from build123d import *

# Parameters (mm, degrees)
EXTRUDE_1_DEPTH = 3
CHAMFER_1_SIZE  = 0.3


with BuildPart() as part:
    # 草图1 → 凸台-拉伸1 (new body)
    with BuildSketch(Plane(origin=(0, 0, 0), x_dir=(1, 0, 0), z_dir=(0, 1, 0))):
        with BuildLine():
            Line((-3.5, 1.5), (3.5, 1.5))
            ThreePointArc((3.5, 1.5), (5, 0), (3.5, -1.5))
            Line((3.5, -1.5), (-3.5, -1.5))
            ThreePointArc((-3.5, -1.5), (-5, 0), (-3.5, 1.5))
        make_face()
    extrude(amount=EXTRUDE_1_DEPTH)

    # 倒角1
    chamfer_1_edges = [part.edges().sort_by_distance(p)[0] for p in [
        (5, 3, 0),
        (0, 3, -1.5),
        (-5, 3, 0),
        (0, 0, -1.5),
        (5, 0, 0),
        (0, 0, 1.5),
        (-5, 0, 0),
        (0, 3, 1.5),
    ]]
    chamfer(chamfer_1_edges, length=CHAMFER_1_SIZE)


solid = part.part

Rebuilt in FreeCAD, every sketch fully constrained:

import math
import FreeCAD as App
import Part
import Sketcher


def edges_at(feature, points):
    """Names of the edges that pass closest to the given points."""
    edges = feature.Shape.Edges
    near = lambda p: min(range(len(edges)), key=lambda i: edges[i].distToShape(Part.Vertex(*p))[0])
    return sorted({f"Edge{near(p) + 1}" for p in points})

doc = App.newDocument("Part")
body = doc.addObject("PartDesign::Body", "Body")

sketch1 = body.newObject("Sketcher::SketchObject", "Sketch")
sketch1.AttachmentSupport = (doc.getObject("XZ_Plane"), [""])
sketch1.MapMode = "FlatFace"
sketch1.addGeometry(Part.LineSegment(App.Vector(3.5, -1.5, 0), App.Vector(-3.5, -1.5, 0)), False)
sketch1.addGeometry(Part.ArcOfCircle(Part.Circle(App.Vector(-3.5, 0, 0), App.Vector(0, 0, 1), 1.5), math.radians(90), math.radians(270)), False)
sketch1.addGeometry(Part.LineSegment(App.Vector(-3.5, 1.5, 0), App.Vector(3.5, 1.5, 0)), False)
sketch1.addGeometry(Part.ArcOfCircle(Part.Circle(App.Vector(3.5, 0, 0), App.Vector(0, 0, 1), 1.5), math.radians(-90), math.radians(90)), False)
sketch1.addConstraint(Sketcher.Constraint("Tangent", 0, 2, 1, 2))
sketch1.addConstraint(Sketcher.Constraint("Tangent", 1, 1, 2, 1))
sketch1.addConstraint(Sketcher.Constraint("Tangent", 2, 2, 3, 2))
sketch1.addConstraint(Sketcher.Constraint("Tangent", 3, 1, 0, 1))
sketch1.addConstraint(Sketcher.Constraint("Horizontal", 0))
sketch1.addConstraint(Sketcher.Constraint("Horizontal", 2))
sketch1.addConstraint(Sketcher.Constraint("Symmetric", 1, 3, 3, 3, -1, 1))
sketch1.addConstraint(Sketcher.Constraint("Radius", 1, 1.5))
sketch1.addConstraint(Sketcher.Constraint("DistanceX", 0, 2, 0, 1, 7.0))
pad1 = body.newObject("PartDesign::Pad", "Pad")
pad1.Profile = sketch1
pad1.Length = 3
pad1.Reversed = True
doc.recompute()

chamfer = body.newObject("PartDesign::Chamfer", "Chamfer")
chamfer.Base = (pad1, edges_at(pad1, [
    (5, 3, 0),
    (0, 3, -1.5),
    (-5, 3, 0),
    (0, 0, -1.5),
    (5, 0, 0),
    (0, 0, 1.5),
    (-5, 0, 0),
    (0, 3, 1.5),
]))
chamfer.Size = 0.3

doc.recompute()
